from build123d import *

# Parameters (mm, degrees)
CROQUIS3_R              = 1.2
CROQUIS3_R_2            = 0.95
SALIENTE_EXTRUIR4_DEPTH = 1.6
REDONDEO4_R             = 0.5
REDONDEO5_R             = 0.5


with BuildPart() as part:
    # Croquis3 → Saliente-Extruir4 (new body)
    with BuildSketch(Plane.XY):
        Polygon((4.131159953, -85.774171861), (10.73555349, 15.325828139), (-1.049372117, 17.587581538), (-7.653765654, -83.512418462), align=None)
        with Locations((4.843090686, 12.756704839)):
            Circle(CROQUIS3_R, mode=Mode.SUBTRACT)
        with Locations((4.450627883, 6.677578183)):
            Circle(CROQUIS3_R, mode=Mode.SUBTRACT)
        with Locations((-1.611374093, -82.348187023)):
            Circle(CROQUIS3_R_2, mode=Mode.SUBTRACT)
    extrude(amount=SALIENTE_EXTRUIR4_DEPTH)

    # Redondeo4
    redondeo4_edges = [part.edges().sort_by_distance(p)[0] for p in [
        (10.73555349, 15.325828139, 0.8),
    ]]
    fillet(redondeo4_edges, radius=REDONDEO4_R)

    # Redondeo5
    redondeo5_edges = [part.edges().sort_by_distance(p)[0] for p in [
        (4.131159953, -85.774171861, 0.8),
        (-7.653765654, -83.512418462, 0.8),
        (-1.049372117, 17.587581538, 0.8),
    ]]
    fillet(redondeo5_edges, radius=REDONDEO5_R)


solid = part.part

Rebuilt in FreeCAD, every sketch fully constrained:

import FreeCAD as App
import Part
import Sketcher
from FreeCAD import Vector


def edges_at(feature, points):
    """Names of the edges that pass closest to the given points."""
    edges = feature.Shape.Edges
    near = lambda p: min(range(len(edges)), key=lambda i: edges[i].distToShape(Part.Vertex(*p))[0])
    return sorted({f"Edge{near(p) + 1}" for p in points})

doc = App.newDocument("Part")
body = doc.addObject("PartDesign::Body", "Body")

sketch1 = doc.addObject("Sketcher::SketchObject", "Sketch")
body.addObject(sketch1)
sketch1.AttachmentSupport = (doc.XY_Plane, [""])
sketch1.MapMode = "FlatFace"
sketch1.addGeometry(Part.LineSegment(Vector(4.13116, -85.774172, 0), Vector(10.735553, 15.325828, 0)), False)
sketch1.addGeometry(Part.LineSegment(Vector(10.735553, 15.325828, 0), Vector(-1.049372, 17.587582, 0)), False)
sketch1.addGeometry(Part.LineSegment(Vector(-1.049372, 17.587582, 0), Vector(-7.653766, -83.512418, 0)), False)
sketch1.addGeometry(Part.LineSegment(Vector(-7.653766, -83.512418, 0), Vector(4.13116, -85.774172, 0)), False)
sketch1.addGeometry(Part.Circle(Vector(-1.611374, -82.348187, 0), Vector(0, 0, 1), 0.95), False)
sketch1.addGeometry(Part.Circle(Vector(4.450628, 6.677578, 0), Vector(0, 0, 1), 1.2), False)
sketch1.addGeometry(Part.Circle(Vector(4.843091, 12.756705, 0), Vector(0, 0, 1), 1.2), False)
sketch1.addConstraint(Sketcher.Constraint("Coincident", 0, 2, 1, 1))
sketch1.addConstraint(Sketcher.Constraint("Coincident", 1, 2, 2, 1))
sketch1.addConstraint(Sketcher.Constraint("Coincident", 2, 2, 3, 1))
sketch1.addConstraint(Sketcher.Constraint("Coincident", 3, 2, 0, 1))
sketch1.addConstraint(Sketcher.Constraint("Equal", 5, 6))
sketch1.addConstraint(Sketcher.Constraint("Parallel", 0, 2))
sketch1.addConstraint(Sketcher.Constraint("Parallel", 1, 3))
sketch1.addConstraint(Sketcher.Constraint("Diameter", 4, 1.9))
sketch1.addConstraint(Sketcher.Constraint("Diameter", 5, 2.4))
sketch1.addConstraint(Sketcher.Constraint("Distance", 1, 12.0))
sketch1.addConstraint(Sketcher.Constraint("DistanceX", 1, 2, 5, 3, 5.5))
sketch1.addConstraint(Sketcher.Constraint("DistanceY", 2, 2, 1, 2, 101.1))
sketch1.addConstraint(Sketcher.Constraint("DistanceX", 4, 3, 5, 3, 6.062002))
sketch1.addConstraint(Sketcher.Constraint("DistanceY", -1, 1, 5, 3, 6.677578))
sketch1.addConstraint(Sketcher.Constraint("DistanceX", -1, 1, 6, 3, 4.843091))
sketch1.addConstraint(Sketcher.Constraint("DistanceY", -1, 1, 0, 2, 15.325828))
sketch1.addConstraint(Sketcher.Constraint("DistanceY", -1, 1, 1, 2, 17.587582))
sketch1.addConstraint(Sketcher.Constraint("DistanceX", -1, 1, 3, 2, 4.13116))
sketch1.addConstraint(Sketcher.Constraint("DistanceY", 4, 3, 6, 3, 95.104892))
sketch1.addConstraint(Sketcher.Constraint("DistanceY", 4, 3, 1, 2, 99.935769))
sketch1.addConstraint(Sketcher.Constraint("DistanceX", 2, 2, 4, 3, 6.042392))
pad1 = doc.addObject("PartDesign::Pad", "Pad")
body.addObject(pad1)
pad1.Profile = sketch1
pad1.Length = 1.6
doc.recompute()

fillet = doc.addObject("PartDesign::Fillet", "Fillet")
body.addObject(fillet)
fillet.Base = (pad1, edges_at(pad1, [(10.736, 15.326, 0.8)]))
fillet.Radius = 0.5
doc.recompute()

fillet2 = doc.addObject("PartDesign::Fillet", "Fillet001")
body.addObject(fillet2)
fillet2.Base = (fillet, edges_at(fillet, [(4.131, -85.774, 0.8), (-7.654, -83.512, 0.8), (-1.049, 17.588, 0.8)]))
fillet2.Radius = 0.5

doc.recompute()
